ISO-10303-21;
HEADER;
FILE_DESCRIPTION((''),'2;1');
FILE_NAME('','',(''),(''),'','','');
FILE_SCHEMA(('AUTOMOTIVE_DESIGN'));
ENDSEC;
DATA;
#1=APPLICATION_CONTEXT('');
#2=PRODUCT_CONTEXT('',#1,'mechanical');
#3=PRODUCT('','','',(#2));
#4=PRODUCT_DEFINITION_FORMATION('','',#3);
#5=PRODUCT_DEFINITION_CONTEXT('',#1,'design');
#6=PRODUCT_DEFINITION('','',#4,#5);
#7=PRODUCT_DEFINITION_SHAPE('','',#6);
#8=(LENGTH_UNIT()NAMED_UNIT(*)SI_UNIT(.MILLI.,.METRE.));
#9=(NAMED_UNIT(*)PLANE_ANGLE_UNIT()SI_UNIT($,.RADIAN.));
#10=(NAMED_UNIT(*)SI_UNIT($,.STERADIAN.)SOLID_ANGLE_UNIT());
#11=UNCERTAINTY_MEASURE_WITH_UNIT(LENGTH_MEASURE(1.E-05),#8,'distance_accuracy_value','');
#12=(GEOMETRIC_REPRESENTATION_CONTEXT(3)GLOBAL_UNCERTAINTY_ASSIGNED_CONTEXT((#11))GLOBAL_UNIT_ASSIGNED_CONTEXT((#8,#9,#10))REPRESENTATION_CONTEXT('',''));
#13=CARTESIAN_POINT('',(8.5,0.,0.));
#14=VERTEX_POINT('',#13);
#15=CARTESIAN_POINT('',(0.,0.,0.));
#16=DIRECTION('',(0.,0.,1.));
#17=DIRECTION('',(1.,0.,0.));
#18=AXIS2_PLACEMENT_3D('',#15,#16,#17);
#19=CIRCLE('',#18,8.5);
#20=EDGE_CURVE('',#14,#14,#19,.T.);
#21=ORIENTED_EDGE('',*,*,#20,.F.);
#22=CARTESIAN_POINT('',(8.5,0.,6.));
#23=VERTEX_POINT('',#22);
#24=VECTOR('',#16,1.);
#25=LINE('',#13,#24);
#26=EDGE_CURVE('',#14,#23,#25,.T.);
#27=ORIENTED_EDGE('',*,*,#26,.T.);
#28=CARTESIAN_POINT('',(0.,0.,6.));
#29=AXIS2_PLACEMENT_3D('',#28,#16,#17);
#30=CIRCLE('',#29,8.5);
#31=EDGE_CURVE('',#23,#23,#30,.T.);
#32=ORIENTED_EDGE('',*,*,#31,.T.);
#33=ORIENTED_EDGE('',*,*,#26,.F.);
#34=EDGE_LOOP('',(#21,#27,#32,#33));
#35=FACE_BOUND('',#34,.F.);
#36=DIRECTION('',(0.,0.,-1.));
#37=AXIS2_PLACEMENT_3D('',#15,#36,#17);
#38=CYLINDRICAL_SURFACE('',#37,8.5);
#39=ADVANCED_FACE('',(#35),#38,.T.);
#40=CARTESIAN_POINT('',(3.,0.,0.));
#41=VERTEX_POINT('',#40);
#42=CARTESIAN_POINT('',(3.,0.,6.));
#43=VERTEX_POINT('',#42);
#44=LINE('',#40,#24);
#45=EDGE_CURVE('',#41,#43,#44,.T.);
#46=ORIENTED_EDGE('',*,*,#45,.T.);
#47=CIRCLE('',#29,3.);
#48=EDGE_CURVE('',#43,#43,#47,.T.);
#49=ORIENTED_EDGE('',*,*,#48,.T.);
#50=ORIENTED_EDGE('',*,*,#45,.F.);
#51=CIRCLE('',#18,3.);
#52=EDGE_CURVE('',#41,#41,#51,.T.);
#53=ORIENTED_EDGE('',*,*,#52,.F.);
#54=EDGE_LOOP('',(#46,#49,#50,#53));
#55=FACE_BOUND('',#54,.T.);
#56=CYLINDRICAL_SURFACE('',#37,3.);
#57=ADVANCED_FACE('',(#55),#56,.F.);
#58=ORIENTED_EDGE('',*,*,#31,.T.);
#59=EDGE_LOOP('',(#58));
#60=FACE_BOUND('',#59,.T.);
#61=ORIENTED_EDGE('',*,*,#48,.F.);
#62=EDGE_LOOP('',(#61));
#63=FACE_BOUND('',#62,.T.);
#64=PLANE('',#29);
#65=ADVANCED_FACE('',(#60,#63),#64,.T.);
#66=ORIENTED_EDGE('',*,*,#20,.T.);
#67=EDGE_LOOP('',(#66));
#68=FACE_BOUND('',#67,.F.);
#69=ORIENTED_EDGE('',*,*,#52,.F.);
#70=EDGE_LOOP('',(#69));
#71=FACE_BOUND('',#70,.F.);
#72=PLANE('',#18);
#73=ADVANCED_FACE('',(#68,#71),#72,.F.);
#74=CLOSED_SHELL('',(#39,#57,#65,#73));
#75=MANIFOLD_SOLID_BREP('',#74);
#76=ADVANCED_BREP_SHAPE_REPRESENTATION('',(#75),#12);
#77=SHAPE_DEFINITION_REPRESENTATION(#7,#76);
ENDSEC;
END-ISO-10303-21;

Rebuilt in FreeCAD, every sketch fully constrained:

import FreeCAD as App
import Part
import Sketcher

doc = App.newDocument("Part")
body = doc.addObject("PartDesign::Body", "Body")

sketch1 = body.newObject("Sketcher::SketchObject", "Sketch")
sketch1.AttachmentSupport = (doc.getObject("XY_Plane"), [""])
sketch1.MapMode = "FlatFace"
sketch1.addGeometry([
    Part.Circle(App.Vector(0, 0, 0), App.Vector(0, 0, 1), 8.5),
    Part.Circle(App.Vector(0, 0, 0), App.Vector(0, 0, 1), 3),
], False)
sketch1.addConstraint([
    Sketcher.Constraint("Coincident", 0, 3, -1, 1),
    Sketcher.Constraint("Coincident", 1, 3, -1, 1),
    Sketcher.Constraint("Diameter", 0, 17.0),
    Sketcher.Constraint("Diameter", 1, 6.0),
])
pad1 = body.newObject("PartDesign::Pad", "Pad")
pad1.Profile = sketch1
pad1.Length = 6

doc.recompute()
